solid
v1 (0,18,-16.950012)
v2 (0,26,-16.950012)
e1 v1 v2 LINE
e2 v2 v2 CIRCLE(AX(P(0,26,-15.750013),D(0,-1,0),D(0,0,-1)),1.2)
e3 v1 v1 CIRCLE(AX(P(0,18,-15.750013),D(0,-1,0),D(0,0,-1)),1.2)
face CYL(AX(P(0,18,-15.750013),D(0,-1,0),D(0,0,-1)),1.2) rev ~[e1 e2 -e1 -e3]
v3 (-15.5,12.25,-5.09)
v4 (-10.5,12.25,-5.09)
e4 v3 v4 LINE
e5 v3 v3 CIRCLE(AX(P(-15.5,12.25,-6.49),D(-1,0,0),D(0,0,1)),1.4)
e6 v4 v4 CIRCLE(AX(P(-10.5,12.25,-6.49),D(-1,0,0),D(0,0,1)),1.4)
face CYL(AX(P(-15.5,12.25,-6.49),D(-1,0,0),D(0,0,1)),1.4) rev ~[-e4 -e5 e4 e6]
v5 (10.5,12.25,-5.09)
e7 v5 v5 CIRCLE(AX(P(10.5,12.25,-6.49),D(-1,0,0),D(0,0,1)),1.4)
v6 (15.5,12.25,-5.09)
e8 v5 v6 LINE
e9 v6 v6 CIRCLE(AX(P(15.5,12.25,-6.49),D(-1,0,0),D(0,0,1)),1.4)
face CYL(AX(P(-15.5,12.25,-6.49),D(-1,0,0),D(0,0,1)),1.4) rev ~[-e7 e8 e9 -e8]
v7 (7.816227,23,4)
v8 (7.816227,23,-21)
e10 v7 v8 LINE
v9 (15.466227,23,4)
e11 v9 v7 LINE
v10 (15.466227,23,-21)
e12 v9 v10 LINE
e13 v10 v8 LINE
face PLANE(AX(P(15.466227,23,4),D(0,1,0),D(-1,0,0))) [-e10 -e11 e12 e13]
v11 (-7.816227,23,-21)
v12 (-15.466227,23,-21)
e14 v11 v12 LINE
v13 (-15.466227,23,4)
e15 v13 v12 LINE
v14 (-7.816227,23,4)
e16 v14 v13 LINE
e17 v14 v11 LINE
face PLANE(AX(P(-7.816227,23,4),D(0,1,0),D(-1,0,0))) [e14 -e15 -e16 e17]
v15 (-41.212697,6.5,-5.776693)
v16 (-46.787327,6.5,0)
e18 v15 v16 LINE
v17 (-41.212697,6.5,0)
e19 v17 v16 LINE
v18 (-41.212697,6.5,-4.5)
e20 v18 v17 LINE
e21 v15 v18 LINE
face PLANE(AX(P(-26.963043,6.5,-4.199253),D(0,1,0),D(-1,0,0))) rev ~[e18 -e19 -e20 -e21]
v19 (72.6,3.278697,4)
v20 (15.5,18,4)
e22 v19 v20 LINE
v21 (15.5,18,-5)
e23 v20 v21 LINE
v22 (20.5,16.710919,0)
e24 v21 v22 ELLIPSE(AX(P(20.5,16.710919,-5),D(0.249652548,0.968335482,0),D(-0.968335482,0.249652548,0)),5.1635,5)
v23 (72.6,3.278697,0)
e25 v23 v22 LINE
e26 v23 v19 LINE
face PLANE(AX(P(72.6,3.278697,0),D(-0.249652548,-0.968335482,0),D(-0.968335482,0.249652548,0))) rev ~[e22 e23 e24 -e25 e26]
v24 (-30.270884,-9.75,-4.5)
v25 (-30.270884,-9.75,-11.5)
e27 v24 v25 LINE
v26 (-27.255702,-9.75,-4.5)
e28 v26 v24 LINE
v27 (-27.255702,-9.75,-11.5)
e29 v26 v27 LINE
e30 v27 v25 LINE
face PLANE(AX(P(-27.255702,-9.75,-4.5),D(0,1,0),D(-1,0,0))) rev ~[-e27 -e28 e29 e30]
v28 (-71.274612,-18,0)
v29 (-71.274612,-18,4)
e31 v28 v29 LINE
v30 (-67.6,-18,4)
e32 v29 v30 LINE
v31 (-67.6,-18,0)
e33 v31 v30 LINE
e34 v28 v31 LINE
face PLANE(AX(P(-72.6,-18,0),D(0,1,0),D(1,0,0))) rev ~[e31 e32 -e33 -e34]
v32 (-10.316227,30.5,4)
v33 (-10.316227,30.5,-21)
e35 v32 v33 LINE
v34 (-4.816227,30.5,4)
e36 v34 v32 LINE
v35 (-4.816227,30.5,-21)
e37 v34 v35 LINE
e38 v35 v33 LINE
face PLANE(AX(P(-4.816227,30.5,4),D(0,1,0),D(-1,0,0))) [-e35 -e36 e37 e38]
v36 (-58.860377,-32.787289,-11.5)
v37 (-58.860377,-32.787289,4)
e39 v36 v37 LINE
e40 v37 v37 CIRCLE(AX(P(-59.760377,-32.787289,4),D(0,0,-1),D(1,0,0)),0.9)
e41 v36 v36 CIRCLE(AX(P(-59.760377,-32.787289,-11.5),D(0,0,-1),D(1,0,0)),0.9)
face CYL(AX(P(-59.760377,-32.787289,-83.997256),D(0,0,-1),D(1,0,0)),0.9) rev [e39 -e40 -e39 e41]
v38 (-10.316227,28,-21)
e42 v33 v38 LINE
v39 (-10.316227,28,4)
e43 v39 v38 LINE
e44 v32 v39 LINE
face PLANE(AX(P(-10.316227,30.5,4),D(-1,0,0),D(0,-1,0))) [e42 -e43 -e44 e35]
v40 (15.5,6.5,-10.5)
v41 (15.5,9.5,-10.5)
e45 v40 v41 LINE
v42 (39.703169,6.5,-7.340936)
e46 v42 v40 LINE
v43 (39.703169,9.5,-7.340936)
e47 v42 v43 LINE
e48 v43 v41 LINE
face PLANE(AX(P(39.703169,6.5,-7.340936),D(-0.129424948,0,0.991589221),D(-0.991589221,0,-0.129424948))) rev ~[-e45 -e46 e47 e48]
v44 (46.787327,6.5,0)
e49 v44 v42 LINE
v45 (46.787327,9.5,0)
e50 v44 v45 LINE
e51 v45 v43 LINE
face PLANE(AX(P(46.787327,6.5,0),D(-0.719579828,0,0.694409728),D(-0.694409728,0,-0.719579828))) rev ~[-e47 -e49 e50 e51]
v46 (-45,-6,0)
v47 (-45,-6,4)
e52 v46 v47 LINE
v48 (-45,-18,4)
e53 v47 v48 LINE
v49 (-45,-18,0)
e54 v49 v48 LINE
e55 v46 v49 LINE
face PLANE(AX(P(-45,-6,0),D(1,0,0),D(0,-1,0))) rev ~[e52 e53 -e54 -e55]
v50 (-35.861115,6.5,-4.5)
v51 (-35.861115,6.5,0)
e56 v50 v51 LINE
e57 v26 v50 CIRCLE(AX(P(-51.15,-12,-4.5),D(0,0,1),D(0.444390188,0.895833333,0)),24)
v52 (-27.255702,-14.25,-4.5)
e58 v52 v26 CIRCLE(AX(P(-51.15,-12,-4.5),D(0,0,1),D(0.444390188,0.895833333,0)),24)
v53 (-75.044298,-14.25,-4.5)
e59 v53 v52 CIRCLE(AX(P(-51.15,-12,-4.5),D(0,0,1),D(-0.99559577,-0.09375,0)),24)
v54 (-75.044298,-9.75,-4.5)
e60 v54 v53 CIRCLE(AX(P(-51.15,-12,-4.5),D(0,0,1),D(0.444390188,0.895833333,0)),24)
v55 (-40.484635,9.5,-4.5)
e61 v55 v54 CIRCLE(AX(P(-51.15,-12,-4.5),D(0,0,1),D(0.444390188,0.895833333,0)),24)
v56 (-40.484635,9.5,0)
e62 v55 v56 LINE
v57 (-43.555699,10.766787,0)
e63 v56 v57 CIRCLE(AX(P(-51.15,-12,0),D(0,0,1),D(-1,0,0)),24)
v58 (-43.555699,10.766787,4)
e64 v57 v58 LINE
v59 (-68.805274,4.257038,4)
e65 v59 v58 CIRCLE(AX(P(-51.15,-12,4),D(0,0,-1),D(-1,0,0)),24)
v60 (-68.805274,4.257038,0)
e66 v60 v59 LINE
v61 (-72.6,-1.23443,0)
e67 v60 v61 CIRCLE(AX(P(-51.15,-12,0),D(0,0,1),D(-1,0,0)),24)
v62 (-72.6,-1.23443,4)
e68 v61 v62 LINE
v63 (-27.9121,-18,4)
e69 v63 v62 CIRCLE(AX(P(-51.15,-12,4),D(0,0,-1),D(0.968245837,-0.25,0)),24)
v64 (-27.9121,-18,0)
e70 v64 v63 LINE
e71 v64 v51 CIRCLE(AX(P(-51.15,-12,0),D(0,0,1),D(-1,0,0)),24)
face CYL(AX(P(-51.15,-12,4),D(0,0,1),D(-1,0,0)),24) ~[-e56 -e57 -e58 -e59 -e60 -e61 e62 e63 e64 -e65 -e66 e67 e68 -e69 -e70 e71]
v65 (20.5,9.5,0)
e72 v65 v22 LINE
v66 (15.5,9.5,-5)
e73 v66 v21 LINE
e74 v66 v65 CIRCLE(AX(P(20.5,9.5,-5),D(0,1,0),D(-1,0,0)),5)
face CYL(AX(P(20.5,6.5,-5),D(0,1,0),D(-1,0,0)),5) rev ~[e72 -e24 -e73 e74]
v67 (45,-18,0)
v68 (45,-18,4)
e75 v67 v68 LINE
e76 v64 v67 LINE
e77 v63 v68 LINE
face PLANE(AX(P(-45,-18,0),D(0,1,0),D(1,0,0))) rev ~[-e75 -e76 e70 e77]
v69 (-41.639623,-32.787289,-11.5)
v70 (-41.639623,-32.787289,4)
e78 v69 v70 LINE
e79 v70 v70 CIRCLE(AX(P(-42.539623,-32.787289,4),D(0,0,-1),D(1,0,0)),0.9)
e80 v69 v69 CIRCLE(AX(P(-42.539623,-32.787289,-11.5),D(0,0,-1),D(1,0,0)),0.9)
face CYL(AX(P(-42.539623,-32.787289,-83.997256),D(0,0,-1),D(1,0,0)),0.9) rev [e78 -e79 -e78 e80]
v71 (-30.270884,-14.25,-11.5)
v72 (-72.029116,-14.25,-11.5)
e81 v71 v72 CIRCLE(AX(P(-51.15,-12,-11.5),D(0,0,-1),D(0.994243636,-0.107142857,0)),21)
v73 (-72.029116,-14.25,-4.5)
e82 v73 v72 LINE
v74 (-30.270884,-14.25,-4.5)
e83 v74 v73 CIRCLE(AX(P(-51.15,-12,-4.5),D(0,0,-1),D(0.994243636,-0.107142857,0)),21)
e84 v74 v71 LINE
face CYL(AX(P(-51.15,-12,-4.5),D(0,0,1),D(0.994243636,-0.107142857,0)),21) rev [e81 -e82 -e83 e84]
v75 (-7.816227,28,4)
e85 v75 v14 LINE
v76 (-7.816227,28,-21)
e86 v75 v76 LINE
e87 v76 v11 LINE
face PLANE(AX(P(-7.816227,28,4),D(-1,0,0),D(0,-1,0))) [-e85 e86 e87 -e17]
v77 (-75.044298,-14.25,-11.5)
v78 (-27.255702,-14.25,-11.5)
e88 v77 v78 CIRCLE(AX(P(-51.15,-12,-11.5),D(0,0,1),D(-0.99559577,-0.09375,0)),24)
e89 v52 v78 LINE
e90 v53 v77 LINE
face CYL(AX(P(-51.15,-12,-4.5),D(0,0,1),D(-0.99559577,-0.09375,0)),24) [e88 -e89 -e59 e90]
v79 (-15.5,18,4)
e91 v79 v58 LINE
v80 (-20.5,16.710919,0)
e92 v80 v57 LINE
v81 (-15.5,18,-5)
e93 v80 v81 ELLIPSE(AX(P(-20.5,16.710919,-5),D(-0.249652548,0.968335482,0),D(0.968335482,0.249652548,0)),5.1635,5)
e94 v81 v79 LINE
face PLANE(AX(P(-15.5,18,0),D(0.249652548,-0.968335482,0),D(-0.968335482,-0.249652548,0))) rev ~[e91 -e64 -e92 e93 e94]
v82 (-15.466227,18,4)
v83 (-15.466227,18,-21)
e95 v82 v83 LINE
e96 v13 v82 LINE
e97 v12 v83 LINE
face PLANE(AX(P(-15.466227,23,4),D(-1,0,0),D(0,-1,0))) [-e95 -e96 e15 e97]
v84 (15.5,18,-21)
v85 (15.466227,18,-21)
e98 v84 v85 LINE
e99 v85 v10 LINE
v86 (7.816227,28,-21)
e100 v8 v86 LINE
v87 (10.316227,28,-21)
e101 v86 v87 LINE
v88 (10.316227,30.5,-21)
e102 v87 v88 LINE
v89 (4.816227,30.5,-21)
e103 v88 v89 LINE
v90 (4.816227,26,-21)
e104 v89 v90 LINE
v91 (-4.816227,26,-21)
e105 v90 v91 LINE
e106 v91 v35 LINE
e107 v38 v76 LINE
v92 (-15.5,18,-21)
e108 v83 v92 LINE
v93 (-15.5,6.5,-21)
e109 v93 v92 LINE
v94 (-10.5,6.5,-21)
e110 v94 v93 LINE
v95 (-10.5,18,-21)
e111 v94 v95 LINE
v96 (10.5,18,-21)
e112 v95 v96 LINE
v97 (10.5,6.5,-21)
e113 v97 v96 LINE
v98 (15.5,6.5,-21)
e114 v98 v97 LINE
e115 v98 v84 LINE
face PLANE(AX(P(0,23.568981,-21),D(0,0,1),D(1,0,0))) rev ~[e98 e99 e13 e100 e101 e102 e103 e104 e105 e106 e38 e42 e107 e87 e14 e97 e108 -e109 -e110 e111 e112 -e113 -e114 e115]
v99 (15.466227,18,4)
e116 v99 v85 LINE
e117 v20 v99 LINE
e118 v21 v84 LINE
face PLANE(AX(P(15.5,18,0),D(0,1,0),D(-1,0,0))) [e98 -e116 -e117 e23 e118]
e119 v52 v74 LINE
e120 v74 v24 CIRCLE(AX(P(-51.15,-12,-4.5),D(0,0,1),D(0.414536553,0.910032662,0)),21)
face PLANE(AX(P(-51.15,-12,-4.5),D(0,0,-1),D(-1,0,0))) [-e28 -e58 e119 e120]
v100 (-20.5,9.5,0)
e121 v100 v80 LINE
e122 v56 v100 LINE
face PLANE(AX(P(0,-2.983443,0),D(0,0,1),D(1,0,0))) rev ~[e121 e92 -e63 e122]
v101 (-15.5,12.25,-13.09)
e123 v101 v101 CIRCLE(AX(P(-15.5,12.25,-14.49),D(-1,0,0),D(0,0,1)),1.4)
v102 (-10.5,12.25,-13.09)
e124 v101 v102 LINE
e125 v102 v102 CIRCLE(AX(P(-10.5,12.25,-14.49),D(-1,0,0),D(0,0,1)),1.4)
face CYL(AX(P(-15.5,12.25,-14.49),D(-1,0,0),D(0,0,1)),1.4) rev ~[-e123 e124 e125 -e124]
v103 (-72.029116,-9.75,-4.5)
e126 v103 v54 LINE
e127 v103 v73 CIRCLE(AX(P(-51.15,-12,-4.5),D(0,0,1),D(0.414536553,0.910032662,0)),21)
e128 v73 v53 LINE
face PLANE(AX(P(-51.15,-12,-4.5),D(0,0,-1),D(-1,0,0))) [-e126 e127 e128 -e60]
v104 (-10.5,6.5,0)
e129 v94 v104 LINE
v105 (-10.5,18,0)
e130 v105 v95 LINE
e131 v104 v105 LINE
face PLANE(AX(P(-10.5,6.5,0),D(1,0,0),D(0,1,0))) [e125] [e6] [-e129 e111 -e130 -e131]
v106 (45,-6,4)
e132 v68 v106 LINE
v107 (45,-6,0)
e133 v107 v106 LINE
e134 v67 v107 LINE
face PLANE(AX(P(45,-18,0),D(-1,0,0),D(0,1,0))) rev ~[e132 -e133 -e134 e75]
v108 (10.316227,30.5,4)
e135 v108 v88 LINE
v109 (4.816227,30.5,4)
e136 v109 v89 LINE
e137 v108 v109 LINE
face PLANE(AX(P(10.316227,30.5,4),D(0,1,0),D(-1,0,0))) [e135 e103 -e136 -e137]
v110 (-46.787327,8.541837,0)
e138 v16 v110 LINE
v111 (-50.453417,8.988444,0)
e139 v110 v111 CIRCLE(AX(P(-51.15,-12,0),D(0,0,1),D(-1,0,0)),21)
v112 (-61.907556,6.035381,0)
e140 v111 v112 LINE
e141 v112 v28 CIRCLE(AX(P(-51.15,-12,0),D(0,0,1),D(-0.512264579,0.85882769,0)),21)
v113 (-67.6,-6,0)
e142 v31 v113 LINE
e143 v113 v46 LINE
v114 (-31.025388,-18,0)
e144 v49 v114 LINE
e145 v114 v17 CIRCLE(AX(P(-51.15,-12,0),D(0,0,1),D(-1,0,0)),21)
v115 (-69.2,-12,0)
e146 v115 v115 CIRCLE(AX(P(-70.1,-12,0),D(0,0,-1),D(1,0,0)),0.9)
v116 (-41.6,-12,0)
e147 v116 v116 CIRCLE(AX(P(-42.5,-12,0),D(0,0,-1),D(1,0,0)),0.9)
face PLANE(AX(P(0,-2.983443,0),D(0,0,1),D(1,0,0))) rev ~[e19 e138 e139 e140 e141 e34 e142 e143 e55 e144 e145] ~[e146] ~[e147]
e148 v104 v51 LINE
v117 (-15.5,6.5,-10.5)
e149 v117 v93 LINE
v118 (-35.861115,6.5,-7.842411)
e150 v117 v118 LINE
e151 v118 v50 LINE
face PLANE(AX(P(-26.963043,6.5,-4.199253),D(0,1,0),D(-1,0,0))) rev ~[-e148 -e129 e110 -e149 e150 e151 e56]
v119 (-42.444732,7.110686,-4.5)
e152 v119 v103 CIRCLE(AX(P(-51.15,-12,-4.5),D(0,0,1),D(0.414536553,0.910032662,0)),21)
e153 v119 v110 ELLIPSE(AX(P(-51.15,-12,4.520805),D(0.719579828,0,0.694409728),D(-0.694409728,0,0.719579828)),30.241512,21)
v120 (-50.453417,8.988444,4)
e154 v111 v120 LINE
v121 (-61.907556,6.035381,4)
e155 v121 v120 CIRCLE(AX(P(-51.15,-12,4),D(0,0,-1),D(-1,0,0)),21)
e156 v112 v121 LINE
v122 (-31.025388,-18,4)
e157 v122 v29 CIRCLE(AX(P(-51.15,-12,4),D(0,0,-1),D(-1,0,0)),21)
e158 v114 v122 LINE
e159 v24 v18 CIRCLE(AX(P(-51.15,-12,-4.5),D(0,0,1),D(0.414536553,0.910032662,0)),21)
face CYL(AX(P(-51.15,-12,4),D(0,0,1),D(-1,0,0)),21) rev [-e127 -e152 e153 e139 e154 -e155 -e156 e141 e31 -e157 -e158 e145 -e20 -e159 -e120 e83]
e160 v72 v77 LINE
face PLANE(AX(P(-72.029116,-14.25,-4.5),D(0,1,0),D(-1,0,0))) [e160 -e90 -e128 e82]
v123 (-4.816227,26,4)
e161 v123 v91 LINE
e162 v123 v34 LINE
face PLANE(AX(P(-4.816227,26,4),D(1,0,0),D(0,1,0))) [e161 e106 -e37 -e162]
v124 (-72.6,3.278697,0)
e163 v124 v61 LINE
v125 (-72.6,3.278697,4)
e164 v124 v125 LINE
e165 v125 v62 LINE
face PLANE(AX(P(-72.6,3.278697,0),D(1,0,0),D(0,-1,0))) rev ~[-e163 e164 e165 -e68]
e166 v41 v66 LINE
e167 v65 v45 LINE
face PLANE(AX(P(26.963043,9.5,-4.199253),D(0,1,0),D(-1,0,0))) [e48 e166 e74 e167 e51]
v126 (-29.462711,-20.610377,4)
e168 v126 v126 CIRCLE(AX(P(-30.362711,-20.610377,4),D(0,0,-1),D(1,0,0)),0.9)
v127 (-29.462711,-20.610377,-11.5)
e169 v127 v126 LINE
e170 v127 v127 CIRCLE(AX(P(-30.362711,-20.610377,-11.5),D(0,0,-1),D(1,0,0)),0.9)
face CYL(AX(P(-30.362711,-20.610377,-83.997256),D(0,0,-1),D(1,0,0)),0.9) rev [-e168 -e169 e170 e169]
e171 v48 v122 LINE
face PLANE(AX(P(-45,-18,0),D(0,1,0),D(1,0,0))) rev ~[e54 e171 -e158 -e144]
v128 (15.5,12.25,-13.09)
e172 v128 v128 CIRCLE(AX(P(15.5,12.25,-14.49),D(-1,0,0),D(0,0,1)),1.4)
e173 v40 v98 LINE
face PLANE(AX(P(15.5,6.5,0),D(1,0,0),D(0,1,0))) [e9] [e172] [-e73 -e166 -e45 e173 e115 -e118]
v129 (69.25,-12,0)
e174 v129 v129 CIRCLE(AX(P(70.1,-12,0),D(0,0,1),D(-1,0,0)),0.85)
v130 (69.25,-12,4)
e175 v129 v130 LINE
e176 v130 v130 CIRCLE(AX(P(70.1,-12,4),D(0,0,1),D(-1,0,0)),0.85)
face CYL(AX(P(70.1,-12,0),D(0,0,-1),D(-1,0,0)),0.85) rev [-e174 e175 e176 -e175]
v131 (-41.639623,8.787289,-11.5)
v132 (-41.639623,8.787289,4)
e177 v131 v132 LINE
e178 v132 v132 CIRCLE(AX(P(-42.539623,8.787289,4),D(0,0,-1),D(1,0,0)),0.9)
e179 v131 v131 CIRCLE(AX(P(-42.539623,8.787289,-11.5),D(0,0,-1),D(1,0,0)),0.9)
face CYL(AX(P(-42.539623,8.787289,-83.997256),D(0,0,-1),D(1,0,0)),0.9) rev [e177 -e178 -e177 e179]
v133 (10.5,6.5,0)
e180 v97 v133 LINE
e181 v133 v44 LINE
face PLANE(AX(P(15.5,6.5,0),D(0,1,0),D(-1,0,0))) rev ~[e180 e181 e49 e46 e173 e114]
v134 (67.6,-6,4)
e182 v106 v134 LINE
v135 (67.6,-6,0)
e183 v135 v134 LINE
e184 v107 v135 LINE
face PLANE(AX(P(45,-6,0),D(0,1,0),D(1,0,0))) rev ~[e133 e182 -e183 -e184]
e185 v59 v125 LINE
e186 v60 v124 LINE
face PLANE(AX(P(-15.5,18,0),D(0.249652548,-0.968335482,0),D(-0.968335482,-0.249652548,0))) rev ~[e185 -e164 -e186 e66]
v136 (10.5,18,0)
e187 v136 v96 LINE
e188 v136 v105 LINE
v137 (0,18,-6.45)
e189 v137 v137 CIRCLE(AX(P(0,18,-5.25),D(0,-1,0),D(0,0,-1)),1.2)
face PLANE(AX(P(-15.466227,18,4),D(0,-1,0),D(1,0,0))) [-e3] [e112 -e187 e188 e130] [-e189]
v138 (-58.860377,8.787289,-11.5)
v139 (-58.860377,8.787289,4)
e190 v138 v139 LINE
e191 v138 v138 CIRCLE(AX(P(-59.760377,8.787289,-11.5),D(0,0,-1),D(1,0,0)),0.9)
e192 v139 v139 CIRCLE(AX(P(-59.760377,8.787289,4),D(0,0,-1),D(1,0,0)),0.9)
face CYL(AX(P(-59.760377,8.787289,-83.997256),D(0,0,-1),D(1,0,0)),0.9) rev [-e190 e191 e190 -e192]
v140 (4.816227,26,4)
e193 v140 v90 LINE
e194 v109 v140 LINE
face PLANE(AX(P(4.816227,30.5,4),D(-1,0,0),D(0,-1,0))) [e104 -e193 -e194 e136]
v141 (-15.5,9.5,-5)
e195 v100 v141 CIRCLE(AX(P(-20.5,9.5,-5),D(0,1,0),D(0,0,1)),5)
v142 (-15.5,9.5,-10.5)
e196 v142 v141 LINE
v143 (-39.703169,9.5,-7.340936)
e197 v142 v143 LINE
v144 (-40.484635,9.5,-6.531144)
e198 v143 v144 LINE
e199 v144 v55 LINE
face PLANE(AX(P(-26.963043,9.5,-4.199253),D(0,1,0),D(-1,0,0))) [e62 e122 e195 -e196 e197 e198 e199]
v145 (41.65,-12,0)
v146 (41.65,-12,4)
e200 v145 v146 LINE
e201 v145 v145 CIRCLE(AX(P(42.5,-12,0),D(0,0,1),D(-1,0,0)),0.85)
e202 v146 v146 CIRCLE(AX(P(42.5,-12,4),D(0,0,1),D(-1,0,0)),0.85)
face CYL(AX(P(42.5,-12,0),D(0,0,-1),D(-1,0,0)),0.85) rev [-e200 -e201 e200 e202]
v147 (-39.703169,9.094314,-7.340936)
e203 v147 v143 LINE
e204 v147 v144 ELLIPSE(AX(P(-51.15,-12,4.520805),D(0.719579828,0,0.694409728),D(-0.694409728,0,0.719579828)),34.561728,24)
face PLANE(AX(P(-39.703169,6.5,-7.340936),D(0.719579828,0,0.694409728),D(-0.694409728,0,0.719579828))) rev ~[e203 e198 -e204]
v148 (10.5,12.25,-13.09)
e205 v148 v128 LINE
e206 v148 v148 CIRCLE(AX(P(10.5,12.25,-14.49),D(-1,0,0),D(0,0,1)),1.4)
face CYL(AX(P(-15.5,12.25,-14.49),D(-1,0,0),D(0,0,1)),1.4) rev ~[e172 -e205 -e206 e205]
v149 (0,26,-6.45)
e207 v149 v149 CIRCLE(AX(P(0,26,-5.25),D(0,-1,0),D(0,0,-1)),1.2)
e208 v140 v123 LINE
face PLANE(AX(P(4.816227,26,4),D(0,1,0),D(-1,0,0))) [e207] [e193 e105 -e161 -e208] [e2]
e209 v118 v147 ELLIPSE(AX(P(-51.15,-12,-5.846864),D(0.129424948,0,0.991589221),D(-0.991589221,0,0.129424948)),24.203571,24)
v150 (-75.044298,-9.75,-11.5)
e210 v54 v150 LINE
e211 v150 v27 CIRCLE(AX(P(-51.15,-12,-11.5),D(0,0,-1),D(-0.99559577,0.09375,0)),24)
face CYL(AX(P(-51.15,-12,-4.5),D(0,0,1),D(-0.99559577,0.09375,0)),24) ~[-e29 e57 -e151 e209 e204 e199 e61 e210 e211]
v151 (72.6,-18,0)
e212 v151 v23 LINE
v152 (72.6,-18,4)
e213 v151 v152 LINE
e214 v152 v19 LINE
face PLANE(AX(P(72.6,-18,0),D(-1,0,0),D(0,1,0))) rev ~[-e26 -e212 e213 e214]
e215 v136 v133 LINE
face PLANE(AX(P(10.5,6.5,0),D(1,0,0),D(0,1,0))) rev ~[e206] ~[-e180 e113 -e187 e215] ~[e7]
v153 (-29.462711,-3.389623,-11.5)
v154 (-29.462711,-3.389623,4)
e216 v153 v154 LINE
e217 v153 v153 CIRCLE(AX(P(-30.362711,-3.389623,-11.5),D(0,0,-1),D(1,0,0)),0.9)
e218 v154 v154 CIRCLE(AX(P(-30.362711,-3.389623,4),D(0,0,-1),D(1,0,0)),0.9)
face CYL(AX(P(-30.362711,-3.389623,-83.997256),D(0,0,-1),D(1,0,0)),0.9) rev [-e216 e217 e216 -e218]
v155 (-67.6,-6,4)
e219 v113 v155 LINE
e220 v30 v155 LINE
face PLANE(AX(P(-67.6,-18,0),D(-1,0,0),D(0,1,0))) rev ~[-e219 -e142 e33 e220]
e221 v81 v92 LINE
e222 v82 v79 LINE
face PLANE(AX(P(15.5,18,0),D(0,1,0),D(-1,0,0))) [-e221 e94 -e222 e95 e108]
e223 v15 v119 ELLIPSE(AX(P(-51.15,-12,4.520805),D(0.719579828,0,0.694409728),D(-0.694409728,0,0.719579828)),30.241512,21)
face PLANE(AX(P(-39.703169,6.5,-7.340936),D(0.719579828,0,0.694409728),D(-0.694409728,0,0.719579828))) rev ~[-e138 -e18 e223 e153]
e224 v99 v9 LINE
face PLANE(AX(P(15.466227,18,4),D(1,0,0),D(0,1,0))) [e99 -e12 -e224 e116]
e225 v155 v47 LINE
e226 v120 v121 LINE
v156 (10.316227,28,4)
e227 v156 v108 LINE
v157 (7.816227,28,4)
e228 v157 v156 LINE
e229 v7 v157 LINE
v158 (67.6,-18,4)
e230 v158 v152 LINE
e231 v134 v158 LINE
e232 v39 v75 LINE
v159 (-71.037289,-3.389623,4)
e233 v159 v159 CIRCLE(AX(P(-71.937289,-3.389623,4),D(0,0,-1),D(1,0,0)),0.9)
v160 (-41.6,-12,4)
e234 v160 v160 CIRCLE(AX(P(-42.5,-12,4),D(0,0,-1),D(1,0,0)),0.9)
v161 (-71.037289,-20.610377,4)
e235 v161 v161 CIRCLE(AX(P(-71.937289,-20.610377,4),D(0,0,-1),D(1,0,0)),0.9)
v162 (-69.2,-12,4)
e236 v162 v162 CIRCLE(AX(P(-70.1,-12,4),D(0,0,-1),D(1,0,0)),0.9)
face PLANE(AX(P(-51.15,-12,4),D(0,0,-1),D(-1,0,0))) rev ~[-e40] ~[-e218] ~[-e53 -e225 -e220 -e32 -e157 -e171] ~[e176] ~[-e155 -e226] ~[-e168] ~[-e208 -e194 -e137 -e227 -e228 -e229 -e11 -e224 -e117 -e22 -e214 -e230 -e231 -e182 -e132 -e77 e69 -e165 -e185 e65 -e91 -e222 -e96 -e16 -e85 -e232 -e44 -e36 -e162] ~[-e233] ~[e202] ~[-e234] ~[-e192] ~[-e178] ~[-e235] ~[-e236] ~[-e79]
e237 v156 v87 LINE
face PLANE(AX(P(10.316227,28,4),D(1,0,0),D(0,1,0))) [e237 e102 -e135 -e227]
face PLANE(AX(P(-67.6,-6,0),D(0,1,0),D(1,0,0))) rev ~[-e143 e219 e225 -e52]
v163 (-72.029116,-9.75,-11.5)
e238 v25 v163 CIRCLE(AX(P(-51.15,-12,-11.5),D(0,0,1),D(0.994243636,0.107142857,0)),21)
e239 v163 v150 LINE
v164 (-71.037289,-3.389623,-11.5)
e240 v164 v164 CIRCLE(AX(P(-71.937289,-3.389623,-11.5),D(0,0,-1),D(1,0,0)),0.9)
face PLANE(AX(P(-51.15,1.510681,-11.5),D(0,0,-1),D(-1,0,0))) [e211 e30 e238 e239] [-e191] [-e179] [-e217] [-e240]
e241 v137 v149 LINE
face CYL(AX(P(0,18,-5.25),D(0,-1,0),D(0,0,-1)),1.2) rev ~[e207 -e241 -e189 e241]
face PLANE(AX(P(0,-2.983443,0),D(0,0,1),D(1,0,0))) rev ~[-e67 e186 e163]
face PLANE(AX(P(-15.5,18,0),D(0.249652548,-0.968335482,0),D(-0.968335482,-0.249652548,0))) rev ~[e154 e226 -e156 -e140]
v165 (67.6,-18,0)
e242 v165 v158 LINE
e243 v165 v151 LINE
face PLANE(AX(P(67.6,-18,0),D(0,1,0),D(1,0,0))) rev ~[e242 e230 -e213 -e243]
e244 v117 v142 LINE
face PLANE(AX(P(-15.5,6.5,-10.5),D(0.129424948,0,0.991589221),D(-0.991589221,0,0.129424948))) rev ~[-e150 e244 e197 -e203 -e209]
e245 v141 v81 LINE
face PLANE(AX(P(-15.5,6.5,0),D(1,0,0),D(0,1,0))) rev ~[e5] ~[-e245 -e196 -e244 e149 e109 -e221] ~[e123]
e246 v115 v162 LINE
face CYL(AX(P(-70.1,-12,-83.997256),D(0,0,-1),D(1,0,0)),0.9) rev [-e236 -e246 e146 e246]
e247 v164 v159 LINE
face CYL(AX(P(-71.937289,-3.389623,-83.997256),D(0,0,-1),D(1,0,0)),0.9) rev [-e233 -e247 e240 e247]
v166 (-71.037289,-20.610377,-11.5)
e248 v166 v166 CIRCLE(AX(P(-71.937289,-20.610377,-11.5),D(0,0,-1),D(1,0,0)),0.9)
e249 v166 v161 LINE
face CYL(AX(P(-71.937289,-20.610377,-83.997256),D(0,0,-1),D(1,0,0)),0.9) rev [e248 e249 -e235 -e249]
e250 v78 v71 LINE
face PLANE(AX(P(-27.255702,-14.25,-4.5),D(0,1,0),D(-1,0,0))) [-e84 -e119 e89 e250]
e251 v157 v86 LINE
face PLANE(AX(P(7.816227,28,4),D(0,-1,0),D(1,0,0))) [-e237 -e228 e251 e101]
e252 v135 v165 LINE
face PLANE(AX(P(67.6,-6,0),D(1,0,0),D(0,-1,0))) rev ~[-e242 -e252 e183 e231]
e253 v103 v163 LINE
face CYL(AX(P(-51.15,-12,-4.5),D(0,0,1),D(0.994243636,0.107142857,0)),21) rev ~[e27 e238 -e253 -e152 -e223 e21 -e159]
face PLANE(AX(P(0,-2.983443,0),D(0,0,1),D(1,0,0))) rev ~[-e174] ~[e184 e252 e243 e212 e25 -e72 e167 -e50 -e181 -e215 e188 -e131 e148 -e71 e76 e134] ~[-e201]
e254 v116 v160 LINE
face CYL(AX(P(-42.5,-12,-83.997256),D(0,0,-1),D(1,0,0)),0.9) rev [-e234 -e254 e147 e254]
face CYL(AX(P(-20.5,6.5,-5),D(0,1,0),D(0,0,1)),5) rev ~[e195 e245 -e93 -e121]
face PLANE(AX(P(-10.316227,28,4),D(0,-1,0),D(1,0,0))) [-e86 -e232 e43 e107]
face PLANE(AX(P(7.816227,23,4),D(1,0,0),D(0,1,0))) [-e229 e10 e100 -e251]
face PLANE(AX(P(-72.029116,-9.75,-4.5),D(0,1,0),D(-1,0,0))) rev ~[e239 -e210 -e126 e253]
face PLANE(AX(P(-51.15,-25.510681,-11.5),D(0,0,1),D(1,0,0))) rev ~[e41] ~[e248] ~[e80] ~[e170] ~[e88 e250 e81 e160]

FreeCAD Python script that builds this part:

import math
import FreeCAD as App
import Part
import Sketcher
from FreeCAD import Vector


def edges_at(feature, points):
    """Names of the edges that pass closest to the given points."""
    edges = feature.Shape.Edges
    near = lambda p: min(range(len(edges)), key=lambda i: edges[i].distToShape(Part.Vertex(*p))[0])
    return sorted({f"Edge{near(p) + 1}" for p in points})

doc = App.newDocument("Part")
body = doc.addObject("PartDesign::Body", "Body")

# Sketch on XY plane
sketch1 = body.newObject("Sketcher::SketchObject", "Sketch")
sketch1.AttachmentSupport = (doc.getObject("XY_Plane"), [""])
sketch1.MapMode = "FlatFace"
sketch1.addGeometry(Part.LineSegment(Vector(15.5, 18, 0), Vector(-15.5, 18, 0)), False)
sketch1.addGeometry(Part.LineSegment(Vector(-15.5, 18, 0), Vector(-72.6, 3.3, 0)), False)
sketch1.addGeometry(Part.LineSegment(Vector(-72.6, 3.3, 0), Vector(-72.6, -18, 0)), False)
sketch1.addGeometry(Part.LineSegment(Vector(-72.6, -18, 0), Vector(-67.6, -18, 0)), False)
sketch1.addGeometry(Part.LineSegment(Vector(-67.6, -18, 0), Vector(-67.6, -6, 0)), False)
sketch1.addGeometry(Part.LineSegment(Vector(-67.6, -6, 0), Vector(-45, -6, 0)), False)
sketch1.addGeometry(Part.LineSegment(Vector(-45, -6, 0), Vector(-45, -18, 0)), False)
sketch1.addGeometry(Part.LineSegment(Vector(-45, -18, 0), Vector(45, -18, 0)), False)
sketch1.addGeometry(Part.LineSegment(Vector(45, -18, 0), Vector(45, -6, 0)), False)
sketch1.addGeometry(Part.LineSegment(Vector(45, -6, 0), Vector(67.6, -6, 0)), False)
sketch1.addGeometry(Part.LineSegment(Vector(67.6, -6, 0), Vector(67.6, -18, 0)), False)
sketch1.addGeometry(Part.LineSegment(Vector(67.6, -18, 0), Vector(72.6, -18, 0)), False)
sketch1.addGeometry(Part.LineSegment(Vector(72.6, -18, 0), Vector(72.6, 3.3, 0)), False)
sketch1.addGeometry(Part.LineSegment(Vector(72.6, 3.3, 0), Vector(15.5, 18, 0)), False)
sketch1.addGeometry(Part.Circle(Vector(-70.1, -12, 0), Vector(0, 0, 1), 0.8), False)
sketch1.addGeometry(Part.Circle(Vector(-42.5, -12, 0), Vector(0, 0, 1), 0.8), False)
sketch1.addGeometry(Part.Circle(Vector(42.5, -12, 0), Vector(0, 0, 1), 0.8), False)
sketch1.addGeometry(Part.Circle(Vector(70.1, -12, 0), Vector(0, 0, 1), 0.8), False)
sketch1.addConstraint(Sketcher.Constraint("Coincident", 0, 2, 1, 1))
sketch1.addConstraint(Sketcher.Constraint("Coincident", 1, 2, 2, 1))
sketch1.addConstraint(Sketcher.Constraint("Coincident", 2, 2, 3, 1))
sketch1.addConstraint(Sketcher.Constraint("Coincident", 3, 2, 4, 1))
sketch1.addConstraint(Sketcher.Constraint("Coincident", 4, 2, 5, 1))
sketch1.addConstraint(Sketcher.Constraint("Coincident", 5, 2, 6, 1))
sketch1.addConstraint(Sketcher.Constraint("Coincident", 6, 2, 7, 1))
sketch1.addConstraint(Sketcher.Constraint("Coincident", 7, 2, 8, 1))
sketch1.addConstraint(Sketcher.Constraint("Coincident", 8, 2, 9, 1))
sketch1.addConstraint(Sketcher.Constraint("Coincident", 9, 2, 10, 1))
sketch1.addConstraint(Sketcher.Constraint("Coincident", 10, 2, 11, 1))
sketch1.addConstraint(Sketcher.Constraint("Coincident", 11, 2, 12, 1))
sketch1.addConstraint(Sketcher.Constraint("Coincident", 12, 2, 13, 1))
sketch1.addConstraint(Sketcher.Constraint("Coincident", 13, 2, 0, 1))
sketch1.addConstraint(Sketcher.Constraint("Horizontal", 0))
sketch1.addConstraint(Sketcher.Constraint("Vertical", 2))
sketch1.addConstraint(Sketcher.Constraint("Horizontal", 3))
sketch1.addConstraint(Sketcher.Constraint("Vertical", 4))
sketch1.addConstraint(Sketcher.Constraint("Horizontal", 5))
sketch1.addConstraint(Sketcher.Constraint("Vertical", 6))
sketch1.addConstraint(Sketcher.Constraint("Horizontal", 7))
sketch1.addConstraint(Sketcher.Constraint("Vertical", 8))
sketch1.addConstraint(Sketcher.Constraint("Horizontal", 9))
sketch1.addConstraint(Sketcher.Constraint("Vertical", 10))
sketch1.addConstraint(Sketcher.Constraint("Horizontal", 11))
sketch1.addConstraint(Sketcher.Constraint("Vertical", 12))
sketch1.addConstraint(Sketcher.Constraint("Equal", 14, 15))
sketch1.addConstraint(Sketcher.Constraint("Equal", 15, 16))
sketch1.addConstraint(Sketcher.Constraint("Equal", 16, 17))
sketch1.addConstraint(Sketcher.Constraint("Symmetric", 15, 3, 16, 3, -2))
sketch1.addConstraint(Sketcher.Constraint("Symmetric", 14, 3, 17, 3, -2))
sketch1.addConstraint(Sketcher.Constraint("Symmetric", 5, 2, 8, 2, -2))
sketch1.addConstraint(Sketcher.Constraint("Symmetric", 3, 2, 10, 2, -2))
sketch1.addConstraint(Sketcher.Constraint("Symmetric", 1, 2, 12, 2, -2))
sketch1.addConstraint(Sketcher.Constraint("Horizontal", 14, 3, 15, 3))
sketch1.addConstraint(Sketcher.Constraint("Horizontal", 3, 2, 6, 2))
sketch1.addConstraint(Sketcher.Constraint("Equal", 1, 13))
sketch1.addConstraint(Sketcher.Constraint("Diameter", 14, 1.7))
sketch1.addConstraint(Sketcher.Constraint("DistanceX", 0, 2, 0, 1, 31.0))
sketch1.addConstraint(Sketcher.Constraint("DistanceX", 3, 1, 3, 2, 5.0))
sketch1.addConstraint(Sketcher.Constraint("DistanceX", 7, 1, 7, 2, 90.0))
sketch1.addConstraint(Sketcher.Constraint("DistanceY", 4, 1, 4, 2, 12.0))
sketch1.addConstraint(Sketcher.Constraint("DistanceX", 5, 1, 5, 2, 22.6))
sketch1.addConstraint(Sketcher.Constraint("DistanceY", 14, 3, -1, 1, 12.0))
sketch1.addConstraint(Sketcher.Constraint("DistanceY", -1, 1, 0, 2, 18.0))
sketch1.addConstraint(Sketcher.Constraint("DistanceY", 2, 2, -1, 1, 18.0))
sketch1.addConstraint(Sketcher.Constraint("DistanceX", 15, 3, 16, 3, 85.0))
sketch1.addConstraint(Sketcher.Constraint("DistanceX", 14, 3, -1, 1, 70.1))
sketch1.addConstraint(Sketcher.Constraint("DistanceY", 2, 2, 2, 1, 21.278697))
pad1 = body.newObject("PartDesign::Pad", "Pad")
pad1.Profile = sketch1
pad1.Length = 4

# Sketch on XY plane
sketch2 = body.newObject("Sketcher::SketchObject", "Sketch001")
sketch2.AttachmentSupport = (doc.getObject("XY_Plane"), [""])
sketch2.MapMode = "FlatFace"
sketch2.addGeometry(Part.LineSegment(Vector(16, 18, 0), Vector(16, 6, 0)), False)
sketch2.addGeometry(Part.LineSegment(Vector(16, 6, 0), Vector(10, 6, 0)), False)
sketch2.addGeometry(Part.LineSegment(Vector(10, 6, 0), Vector(10, 18, 0)), False)
sketch2.addGeometry(Part.LineSegment(Vector(10, 18, 0), Vector(16, 18, 0)), False)
sketch2.addGeometry(Part.LineSegment(Vector(-10, 18, 0), Vector(-10, 6, 0)), False)
sketch2.addGeometry(Part.LineSegment(Vector(-10, 6, 0), Vector(-16, 6, 0)), False)
sketch2.addGeometry(Part.LineSegment(Vector(-16, 6, 0), Vector(-16, 18, 0)), False)
sketch2.addGeometry(Part.LineSegment(Vector(-16, 18, 0), Vector(-10, 18, 0)), False)
sketch2.addConstraint(Sketcher.Constraint("Coincident", 0, 2, 1, 1))
sketch2.addConstraint(Sketcher.Constraint("Coincident", 1, 2, 2, 1))
sketch2.addConstraint(Sketcher.Constraint("Coincident", 2, 2, 3, 1))
sketch2.addConstraint(Sketcher.Constraint("Coincident", 3, 2, 0, 1))
sketch2.addConstraint(Sketcher.Constraint("Coincident", 4, 2, 5, 1))
sketch2.addConstraint(Sketcher.Constraint("Coincident", 5, 2, 6, 1))
sketch2.addConstraint(Sketcher.Constraint("Coincident", 6, 2, 7, 1))
sketch2.addConstraint(Sketcher.Constraint("Coincident", 7, 2, 4, 1))
sketch2.addConstraint(Sketcher.Constraint("Vertical", 0))
sketch2.addConstraint(Sketcher.Constraint("Horizontal", 1))
sketch2.addConstraint(Sketcher.Constraint("Vertical", 2))
sketch2.addConstraint(Sketcher.Constraint("Horizontal", 3))
sketch2.addConstraint(Sketcher.Constraint("Vertical", 4))
sketch2.addConstraint(Sketcher.Constraint("Horizontal", 5))
sketch2.addConstraint(Sketcher.Constraint("Vertical", 6))
sketch2.addConstraint(Sketcher.Constraint("Horizontal", 7))
sketch2.addConstraint(Sketcher.Constraint("Symmetric", 1, 2, 4, 2, -2))
sketch2.addConstraint(Sketcher.Constraint("Symmetric", 3, 2, 6, 2, -2))
sketch2.addConstraint(Sketcher.Constraint("DistanceX", 1, 2, 1, 1, 5.0))
sketch2.addConstraint(Sketcher.Constraint("DistanceY", 0, 2, 0, 1, 11.5))
sketch2.addConstraint(Sketcher.Constraint("DistanceY", -1, 1, 2, 2, 18.0))
sketch2.addConstraint(Sketcher.Constraint("DistanceX", 4, 2, 1, 2, 21.0))
pad2 = body.newObject("PartDesign::Pad", "Pad001")
pad2.Profile = sketch2
pad2.Length = 21
pad2.Reversed = True

# Sketch on YZ plane
sketch3 = body.newObject("Sketcher::SketchObject", "Sketch002")
sketch3.AttachmentSupport = (doc.getObject("YZ_Plane"), [""])
sketch3.MapMode = "FlatFace"
sketch3.AttachmentOffset = App.Placement(Vector(0, 0, -15.5), App.Rotation())
sketch3.addGeometry(Part.Circle(Vector(12.2, -6.5, 0), Vector(0, 0, 1), 1.4), False)
sketch3.addGeometry(Part.Circle(Vector(12.2, -14.5, 0), Vector(0, 0, 1), 1.4), False)
sketch3.addConstraint(Sketcher.Constraint("Equal", 0, 1))
sketch3.addConstraint(Sketcher.Constraint("Vertical", 0, 3, 1, 3))
sketch3.addConstraint(Sketcher.Constraint("Diameter", 0, 2.8))
sketch3.addConstraint(Sketcher.Constraint("DistanceY", 1, 3, 0, 3, 8.0))
sketch3.addConstraint(Sketcher.Constraint("DistanceX", -1, 1, 0, 3, 12.25))
sketch3.addConstraint(Sketcher.Constraint("DistanceY", 0, 3, -1, 1, 6.49))
pocket1 = body.newObject("PartDesign::Pocket", "Pocket")
pocket1.Profile = sketch3
pocket1.Type = "ThroughAll"
pocket1.Reversed = True
doc.recompute()

fillet = body.newObject("PartDesign::Fillet", "Fillet")
fillet.Base = (pocket1, edges_at(pocket1, [(-15.5, 12.25, 0), (15.5, 12.25, 0)]))
fillet.Radius = 5

# Sketch on XZ plane
sketch4 = body.newObject("Sketcher::SketchObject", "Sketch003")
sketch4.AttachmentSupport = (doc.getObject("XZ_Plane"), [""])
sketch4.MapMode = "FlatFace"
sketch4.AttachmentOffset = App.Placement(Vector(0, 0, -6.5), App.Rotation())
sketch4.addGeometry(Part.LineSegment(Vector(-40, -7, 0), Vector(-16, -10, 0)), False)
sketch4.addGeometry(Part.LineSegment(Vector(-16, -10, 0), Vector(-10, -10, 0)), False)
sketch4.addGeometry(Part.LineSegment(Vector(-10, -10, 0), Vector(-10, 0, 0)), False)
sketch4.addGeometry(Part.LineSegment(Vector(-10, 0, 0), Vector(-47, 0, 0)), False)
sketch4.addGeometry(Part.LineSegment(Vector(-47, 0, 0), Vector(-40, -7, 0)), False)
sketch4.addGeometry(Part.LineSegment(Vector(10, -10, 0), Vector(16, -10, 0)), False)
sketch4.addGeometry(Part.LineSegment(Vector(16, -10, 0), Vector(40, -7, 0)), False)
sketch4.addGeometry(Part.LineSegment(Vector(40, -7, 0), Vector(47, 0, 0)), False)
sketch4.addGeometry(Part.LineSegment(Vector(47, 0, 0), Vector(10, 0, 0)), False)
sketch4.addGeometry(Part.LineSegment(Vector(10, 0, 0), Vector(10, -10, 0)), False)
sketch4.addConstraint(Sketcher.Constraint("Coincident", 0, 2, 1, 1))
sketch4.addConstraint(Sketcher.Constraint("Coincident", 1, 2, 2, 1))
sketch4.addConstraint(Sketcher.Constraint("Coincident", 2, 2, 3, 1))
sketch4.addConstraint(Sketcher.Constraint("Coincident", 3, 2, 4, 1))
sketch4.addConstraint(Sketcher.Constraint("Coincident", 4, 2, 0, 1))
sketch4.addConstraint(Sketcher.Constraint("Coincident", 5, 2, 6, 1))
sketch4.addConstraint(Sketcher.Constraint("Coincident", 6, 2, 7, 1))
sketch4.addConstraint(Sketcher.Constraint("Coincident", 7, 2, 8, 1))
sketch4.addConstraint(Sketcher.Constraint("Coincident", 8, 2, 9, 1))
sketch4.addConstraint(Sketcher.Constraint("Coincident", 9, 2, 5, 1))
sketch4.addConstraint(Sketcher.Constraint("Horizontal", 1))
sketch4.addConstraint(Sketcher.Constraint("Vertical", 2))
sketch4.addConstraint(Sketcher.Constraint("Horizontal", 3))
sketch4.addConstraint(Sketcher.Constraint("Horizontal", 5))
sketch4.addConstraint(Sketcher.Constraint("Horizontal", 8))
sketch4.addConstraint(Sketcher.Constraint("Vertical", 9))
sketch4.addConstraint(Sketcher.Constraint("Symmetric", 3, 2, 7, 2, -1, 1))
sketch4.addConstraint(Sketcher.Constraint("Symmetric", 0, 2, 5, 2, -2))
sketch4.addConstraint(Sketcher.Constraint("Symmetric", 4, 2, 6, 2, -2))
sketch4.addConstraint(Sketcher.Constraint("Symmetric", 2, 2, 8, 2, -2))
sketch4.addConstraint(Sketcher.Constraint("DistanceX", 1, 1, 1, 2, 5.0))
sketch4.addConstraint(Sketcher.Constraint("DistanceY", 2, 1, 2, 2, 10.5))
sketch4.addConstraint(Sketcher.Constraint("DistanceX", 1, 2, 5, 2, 26.0))
sketch4.addConstraint(Sketcher.Constraint("DistanceX", 3, 2, 3, 1, 36.287327))
sketch4.addConstraint(Sketcher.Constraint("DistanceX", 4, 2, -1, 1, 39.703169))
sketch4.addConstraint(Sketcher.Constraint("Distance", 0, 24.408463))
pad3 = body.newObject("PartDesign::Pad", "Pad002")
pad3.Profile = sketch4
pad3.Length = 3
pad3.Reversed = True

# Sketch on XY plane
sketch5 = body.newObject("Sketcher::SketchObject", "Sketch004")
sketch5.AttachmentSupport = (doc.getObject("XY_Plane"), [""])
sketch5.MapMode = "FlatFace"
sketch5.AttachmentOffset = App.Placement(Vector(0, 0, 4), App.Rotation())
sketch5.addGeometry(Part.LineSegment(Vector(-15.5, 23, 0), Vector(-15.5, 18, 0)), False)
sketch5.addGeometry(Part.LineSegment(Vector(-15.5, 18, 0), Vector(15.5, 18, 0)), False)
sketch5.addGeometry(Part.LineSegment(Vector(15.5, 18, 0), Vector(15.5, 23, 0)), False)
sketch5.addGeometry(Part.LineSegment(Vector(15.5, 23, 0), Vector(7.8, 23, 0)), False)
sketch5.addGeometry(Part.LineSegment(Vector(7.8, 23, 0), Vector(7.8, 28, 0)), False)
sketch5.addGeometry(Part.LineSegment(Vector(7.8, 28, 0), Vector(10.3, 28, 0)), False)
sketch5.addGeometry(Part.LineSegment(Vector(10.3, 28, 0), Vector(10.3, 30.5, 0)), False)
sketch5.addGeometry(Part.LineSegment(Vector(10.3, 30.5, 0), Vector(4.8, 30.5, 0)), False)
sketch5.addGeometry(Part.LineSegment(Vector(4.8, 30.5, 0), Vector(4.8, 26, 0)), False)
sketch5.addGeometry(Part.LineSegment(Vector(4.8, 26, 0), Vector(-4.8, 26, 0)), False)
sketch5.addGeometry(Part.LineSegment(Vector(-4.8, 26, 0), Vector(-4.8, 30.5, 0)), False)
sketch5.addGeometry(Part.LineSegment(Vector(-4.8, 30.5, 0), Vector(-10.3, 30.5, 0)), False)
sketch5.addGeometry(Part.LineSegment(Vector(-10.3, 30.5, 0), Vector(-10.3, 28, 0)), False)
sketch5.addGeometry(Part.LineSegment(Vector(-10.3, 28, 0), Vector(-7.8, 28, 0)), False)
sketch5.addGeometry(Part.LineSegment(Vector(-7.8, 28, 0), Vector(-7.8, 23, 0)), False)
sketch5.addGeometry(Part.LineSegment(Vector(-7.8, 23, 0), Vector(-15.5, 23, 0)), False)
sketch5.addConstraint(Sketcher.Constraint("Coincident", 0, 2, 1, 1))
sketch5.addConstraint(Sketcher.Constraint("Coincident", 1, 2, 2, 1))
sketch5.addConstraint(Sketcher.Constraint("Coincident", 2, 2, 3, 1))
sketch5.addConstraint(Sketcher.Constraint("Coincident", 3, 2, 4, 1))
sketch5.addConstraint(Sketcher.Constraint("Coincident", 4, 2, 5, 1))
sketch5.addConstraint(Sketcher.Constraint("Coincident", 5, 2, 6, 1))
sketch5.addConstraint(Sketcher.Constraint("Coincident", 6, 2, 7, 1))
sketch5.addConstraint(Sketcher.Constraint("Coincident", 7, 2, 8, 1))
sketch5.addConstraint(Sketcher.Constraint("Coincident", 8, 2, 9, 1))
sketch5.addConstraint(Sketcher.Constraint("Coincident", 9, 2, 10, 1))
sketch5.addConstraint(Sketcher.Constraint("Coincident", 10, 2, 11, 1))
sketch5.addConstraint(Sketcher.Constraint("Coincident", 11, 2, 12, 1))
sketch5.addConstraint(Sketcher.Constraint("Coincident", 12, 2, 13, 1))
sketch5.addConstraint(Sketcher.Constraint("Coincident", 13, 2, 14, 1))
sketch5.addConstraint(Sketcher.Constraint("Coincident", 14, 2, 15, 1))
sketch5.addConstraint(Sketcher.Constraint("Coincident", 15, 2, 0, 1))
sketch5.addConstraint(Sketcher.Constraint("Vertical", 0))
sketch5.addConstraint(Sketcher.Constraint("Horizontal", 1))
sketch5.addConstraint(Sketcher.Constraint("Vertical", 2))
sketch5.addConstraint(Sketcher.Constraint("Horizontal", 3))
sketch5.addConstraint(Sketcher.Constraint("Vertical", 4))
sketch5.addConstraint(Sketcher.Constraint("Horizontal", 5))
sketch5.addConstraint(Sketcher.Constraint("Vertical", 6))
sketch5.addConstraint(Sketcher.Constraint("Horizontal", 7))
sketch5.addConstraint(Sketcher.Constraint("Vertical", 8))
sketch5.addConstraint(Sketcher.Constraint("Horizontal", 9))
sketch5.addConstraint(Sketcher.Constraint("Vertical", 10))
sketch5.addConstraint(Sketcher.Constraint("Horizontal", 11))
sketch5.addConstraint(Sketcher.Constraint("Vertical", 12))
sketch5.addConstraint(Sketcher.Constraint("Horizontal", 13))
sketch5.addConstraint(Sketcher.Constraint("Vertical", 14))
sketch5.addConstraint(Sketcher.Constraint("Horizontal", 15))
sketch5.addConstraint(Sketcher.Constraint("Symmetric", 7, 2, 10, 2, -2))
sketch5.addConstraint(Sketcher.Constraint("Symmetric", 5, 2, 12, 2, -2))
sketch5.addConstraint(Sketcher.Constraint("Symmetric", 3, 2, 14, 2, -2))
sketch5.addConstraint(Sketcher.Constraint("Equal", 3, 15))
sketch5.addConstraint(Sketcher.Constraint("Equal", 2, 4))
sketch5.addConstraint(Sketcher.Constraint("Equal", 13, 6))
sketch5.addConstraint(Sketcher.Constraint("DistanceY", 0, 2, 0, 1, 5.0))
sketch5.addConstraint(Sketcher.Constraint("DistanceX", 5, 1, 5, 2, 2.5))
sketch5.addConstraint(Sketcher.Constraint("DistanceX", 7, 2, 7, 1, 5.5))
sketch5.addConstraint(Sketcher.Constraint("DistanceY", 8, 2, 8, 1, 4.5))
sketch5.addConstraint(Sketcher.Constraint("DistanceY", -1, 1, 0, 2, 18.0))
sketch5.addConstraint(Sketcher.Constraint("DistanceX", 3, 2, 3, 1, 7.65))
sketch5.addConstraint(Sketcher.Constraint("DistanceX", 1, 1, 1, 2, 30.932454))
pad4 = body.newObject("PartDesign::Pad", "Pad003")
pad4.Profile = sketch5
pad4.Length = 25
pad4.Reversed = True

# Sketch on XZ plane
sketch6 = body.newObject("Sketcher::SketchObject", "Sketch005")
sketch6.AttachmentSupport = (doc.getObject("XZ_Plane"), [""])
sketch6.MapMode = "FlatFace"
sketch6.AttachmentOffset = App.Placement(Vector(0, 0, -18), App.Rotation())
sketch6.addGeometry(Part.Circle(Vector(0, -5.2, 0), Vector(0, 0, 1), 1.2), False)
sketch6.addGeometry(Part.Circle(Vector(0, -15.8, 0), Vector(0, 0, 1), 1.2), False)
sketch6.addConstraint(Sketcher.Constraint("Equal", 0, 1))
sketch6.addConstraint(Sketcher.Constraint("PointOnObject", 0, 3, -2))
sketch6.addConstraint(Sketcher.Constraint("PointOnObject", 1, 3, -2))
sketch6.addConstraint(Sketcher.Constraint("Diameter", 0, 2.4))
sketch6.addConstraint(Sketcher.Constraint("DistanceY", 0, 3, -1, 1, 5.25))
sketch6.addConstraint(Sketcher.Constraint("DistanceY", 1, 3, -1, 1, 15.750013))
pocket2 = body.newObject("PartDesign::Pocket", "Pocket001")
pocket2.Profile = sketch6
pocket2.Type = "ThroughAll"

# Sketch on XY plane
sketch7 = body.newObject("Sketcher::SketchObject", "Sketch006")
sketch7.AttachmentSupport = (doc.getObject("XY_Plane"), [""])
sketch7.MapMode = "FlatFace"
sketch7.addGeometry(Part.Circle(Vector(-51, -12, 0), Vector(0, 0, 1), 24), False)
sketch7.addGeometry(Part.Circle(Vector(-51, -12, 0), Vector(0, 0, 1), 21), False)
sketch7.addConstraint(Sketcher.Constraint("Coincident", 1, 3, 0, 3))
sketch7.addConstraint(Sketcher.Constraint("Diameter", 0, 48.0))
sketch7.addConstraint(Sketcher.Constraint("Diameter", 1, 42.0))
sketch7.addConstraint(Sketcher.Constraint("DistanceY", 0, 3, -1, 1, 12.0))
sketch7.addConstraint(Sketcher.Constraint("DistanceX", 0, 3, -1, 1, 51.15))
pad5 = body.newObject("PartDesign::Pad", "Pad004")
pad5.Profile = sketch7
pad5.Type = "TwoLengths"
pad5.Length = 4.5
pad5.Length2 = 4
pad5.Reversed = True

# Sketch on XY plane
sketch8 = body.newObject("Sketcher::SketchObject", "Sketch007")
sketch8.AttachmentSupport = (doc.getObject("XY_Plane"), [""])
sketch8.MapMode = "FlatFace"
sketch8.AttachmentOffset = App.Placement(Vector(0, 0, -4.5), App.Rotation())
sketch8.addGeometry(Part.LineSegment(Vector(-27.3, -9.8, 0), Vector(-30.3, -9.8, 0)), False)
sketch8.addGeometry(Part.ArcOfCircle(Part.Circle(Vector(-51.1, -12, 0), Vector(0, 0, 1), 21), math.radians(6), math.radians(174)), False)
sketch8.addGeometry(Part.LineSegment(Vector(-72, -9.8, 0), Vector(-75, -9.8, 0)), False)
sketch8.addGeometry(Part.ArcOfCircle(Part.Circle(Vector(-51.1, -12, 0), Vector(0, 0, 1), 24), math.radians(5), math.radians(175)), False)
sketch8.addGeometry(Part.LineSegment(Vector(-30.3, -14.2, 0), Vector(-27.3, -14.2, 0)), False)
sketch8.addGeometry(Part.ArcOfCircle(Part.Circle(Vector(-51.1, -12, 0), Vector(0, 0, 1), 24), math.radians(-175), math.radians(-5)), False)
sketch8.addGeometry(Part.LineSegment(Vector(-75, -14.2, 0), Vector(-72, -14.2, 0)), False)
sketch8.addGeometry(Part.ArcOfCircle(Part.Circle(Vector(-51.1, -12, 0), Vector(0, 0, 1), 21), math.radians(-174), math.radians(-6)), False)
sketch8.addConstraint(Sketcher.Constraint("Coincident", 0, 2, 1, 1))
sketch8.addConstraint(Sketcher.Constraint("Coincident", 1, 2, 2, 1))
sketch8.addConstraint(Sketcher.Constraint("Coincident", 2, 2, 3, 2))
sketch8.addConstraint(Sketcher.Constraint("Coincident", 3, 1, 0, 1))
sketch8.addConstraint(Sketcher.Constraint("Coincident", 4, 2, 5, 2))
sketch8.addConstraint(Sketcher.Constraint("Coincident", 5, 1, 6, 1))
sketch8.addConstraint(Sketcher.Constraint("Coincident", 6, 2, 7, 1))
sketch8.addConstraint(Sketcher.Constraint("Coincident", 7, 2, 4, 1))
sketch8.addConstraint(Sketcher.Constraint("Horizontal", 0))
sketch8.addConstraint(Sketcher.Constraint("Horizontal", 2))
sketch8.addConstraint(Sketcher.Constraint("Horizontal", 4))
sketch8.addConstraint(Sketcher.Constraint("Horizontal", 6))
sketch8.addConstraint(Sketcher.Constraint("Coincident", 3, 3, 1, 3))
sketch8.addConstraint(Sketcher.Constraint("Coincident", 5, 3, 1, 3))
sketch8.addConstraint(Sketcher.Constraint("Coincident", 7, 3, 1, 3))
sketch8.addConstraint(Sketcher.Constraint("Equal", 3, 5))
sketch8.addConstraint(Sketcher.Constraint("Equal", 1, 7))
sketch8.addConstraint(Sketcher.Constraint("Horizontal", 0, 2, 1, 2))
sketch8.addConstraint(Sketcher.Constraint("Horizontal", 4, 2, 5, 1))
sketch8.addConstraint(Sketcher.Constraint("Vertical", 3, 1, 4, 2))
sketch8.addConstraint(Sketcher.Constraint("Radius", 1, 21.0))
sketch8.addConstraint(Sketcher.Constraint("Radius", 3, 24.0))
sketch8.addConstraint(Sketcher.Constraint("DistanceY", 1, 3, -1, 1, 12.0))
sketch8.addConstraint(Sketcher.Constraint("DistanceY", 4, 2, 3, 1, 4.5))
sketch8.addConstraint(Sketcher.Constraint("DistanceX", 1, 3, -1, 1, 51.15))
pad6 = body.newObject("PartDesign::Pad", "Pad005")
pad6.Profile = sketch8
pad6.Length = 7
pad6.Reversed = True

# Sketch on XY plane
sketch9 = body.newObject("Sketcher::SketchObject", "Sketch008")
sketch9.AttachmentSupport = (doc.getObject("XY_Plane"), [""])
sketch9.MapMode = "FlatFace"
sketch9.AttachmentOffset = App.Placement(Vector(0, 0, 4), App.Rotation())
sketch9.addGeometry(Part.Circle(Vector(-70.1, -12, 0), Vector(0, 0, 1), 0.9), False)
sketch9.addGeometry(Part.Circle(Vector(-42.5, -12, 0), Vector(0, 0, 1), 0.9), False)
sketch9.addConstraint(Sketcher.Constraint("Equal", 0, 1))
sketch9.addConstraint(Sketcher.Constraint("Horizontal", 0, 3, 1, 3))
sketch9.addConstraint(Sketcher.Constraint("Diameter", 0, 1.8))
sketch9.addConstraint(Sketcher.Constraint("DistanceY", 0, 3, -1, 1, 12.0))
sketch9.addConstraint(Sketcher.Constraint("DistanceX", 0, 3, -1, 1, 70.1))
sketch9.addConstraint(Sketcher.Constraint("DistanceX", 1, 3, -1, 1, 42.5))
pocket3 = body.newObject("PartDesign::Pocket", "Pocket002")
pocket3.Profile = sketch9
pocket3.Type = "ThroughAll"
pocket3.Midplane = True

# Sketch on XY plane
sketch10 = body.newObject("Sketcher::SketchObject", "Sketch009")
sketch10.AttachmentSupport = (doc.getObject("XY_Plane"), [""])
sketch10.MapMode = "FlatFace"
sketch10.AttachmentOffset = App.Placement(Vector(0, 0, 4), App.Rotation())
sketch10.addGeometry(Part.Circle(Vector(-71.9, -3.4, 0), Vector(0, 0, 1), 0.9), False)
sketch10.addGeometry(Part.Circle(Vector(-59.8, 8.8, 0), Vector(0, 0, 1), 0.9), False)
sketch10.addGeometry(Part.Circle(Vector(-42.5, 8.8, 0), Vector(0, 0, 1), 0.9), False)
sketch10.addGeometry(Part.Circle(Vector(-30.4, -3.4, 0), Vector(0, 0, 1), 0.9), False)
sketch10.addGeometry(Part.Circle(Vector(-30.4, -20.6, 0), Vector(0, 0, 1), 0.9), False)
sketch10.addGeometry(Part.Circle(Vector(-42.5, -32.8, 0), Vector(0, 0, 1), 0.9), False)
sketch10.addGeometry(Part.Circle(Vector(-59.8, -32.8, 0), Vector(0, 0, 1), 0.9), False)
sketch10.addGeometry(Part.Circle(Vector(-71.9, -20.6, 0), Vector(0, 0, 1), 0.9), False)
sketch10.addConstraint(Sketcher.Constraint("Equal", 0, 1))
sketch10.addConstraint(Sketcher.Constraint("Equal", 1, 2))
sketch10.addConstraint(Sketcher.Constraint("Equal", 2, 3))
sketch10.addConstraint(Sketcher.Constraint("Equal", 3, 4))
sketch10.addConstraint(Sketcher.Constraint("Equal", 4, 5))
sketch10.addConstraint(Sketcher.Constraint("Equal", 5, 6))
sketch10.addConstraint(Sketcher.Constraint("Equal", 6, 7))
sketch10.addConstraint(Sketcher.Constraint("Horizontal", 1, 3, 2, 3))
sketch10.addConstraint(Sketcher.Constraint("Horizontal", 0, 3, 3, 3))
sketch10.addConstraint(Sketcher.Constraint("Horizontal", 5, 3, 6, 3))
sketch10.addConstraint(Sketcher.Constraint("Horizontal", 4, 3, 7, 3))
sketch10.addConstraint(Sketcher.Constraint("Vertical", 3, 3, 4, 3))
sketch10.addConstraint(Sketcher.Constraint("Vertical", 2, 3, 5, 3))
sketch10.addConstraint(Sketcher.Constraint("Vertical", 1, 3, 6, 3))
sketch10.addConstraint(Sketcher.Constraint("Vertical", 0, 3, 7, 3))
sketch10.addConstraint(Sketcher.Constraint("Diameter", 0, 1.8))
sketch10.addConstraint(Sketcher.Constraint("DistanceX", 0, 3, -1, 1, 71.937289))
sketch10.addConstraint(Sketcher.Constraint("DistanceY", -1, 1, 1, 3, 8.787289))
sketch10.addConstraint(Sketcher.Constraint("DistanceX", 3, 3, -1, 1, 30.362711))
sketch10.addConstraint(Sketcher.Constraint("DistanceY", 5, 3, -1, 1, 32.787289))
sketch10.addConstraint(Sketcher.Constraint("DistanceY", 0, 3, -1, 1, 3.389623))
sketch10.addConstraint(Sketcher.Constraint("DistanceX", 1, 3, -1, 1, 59.760377))
sketch10.addConstraint(Sketcher.Constraint("DistanceX", 2, 3, -1, 1, 42.539623))
sketch10.addConstraint(Sketcher.Constraint("DistanceY", 4, 3, -1, 1, 20.610377))
pocket4 = body.newObject("PartDesign::Pocket", "Pocket003")
pocket4.Profile = sketch10
pocket4.Type = "ThroughAll"
pocket4.Midplane = True

doc.recompute()
